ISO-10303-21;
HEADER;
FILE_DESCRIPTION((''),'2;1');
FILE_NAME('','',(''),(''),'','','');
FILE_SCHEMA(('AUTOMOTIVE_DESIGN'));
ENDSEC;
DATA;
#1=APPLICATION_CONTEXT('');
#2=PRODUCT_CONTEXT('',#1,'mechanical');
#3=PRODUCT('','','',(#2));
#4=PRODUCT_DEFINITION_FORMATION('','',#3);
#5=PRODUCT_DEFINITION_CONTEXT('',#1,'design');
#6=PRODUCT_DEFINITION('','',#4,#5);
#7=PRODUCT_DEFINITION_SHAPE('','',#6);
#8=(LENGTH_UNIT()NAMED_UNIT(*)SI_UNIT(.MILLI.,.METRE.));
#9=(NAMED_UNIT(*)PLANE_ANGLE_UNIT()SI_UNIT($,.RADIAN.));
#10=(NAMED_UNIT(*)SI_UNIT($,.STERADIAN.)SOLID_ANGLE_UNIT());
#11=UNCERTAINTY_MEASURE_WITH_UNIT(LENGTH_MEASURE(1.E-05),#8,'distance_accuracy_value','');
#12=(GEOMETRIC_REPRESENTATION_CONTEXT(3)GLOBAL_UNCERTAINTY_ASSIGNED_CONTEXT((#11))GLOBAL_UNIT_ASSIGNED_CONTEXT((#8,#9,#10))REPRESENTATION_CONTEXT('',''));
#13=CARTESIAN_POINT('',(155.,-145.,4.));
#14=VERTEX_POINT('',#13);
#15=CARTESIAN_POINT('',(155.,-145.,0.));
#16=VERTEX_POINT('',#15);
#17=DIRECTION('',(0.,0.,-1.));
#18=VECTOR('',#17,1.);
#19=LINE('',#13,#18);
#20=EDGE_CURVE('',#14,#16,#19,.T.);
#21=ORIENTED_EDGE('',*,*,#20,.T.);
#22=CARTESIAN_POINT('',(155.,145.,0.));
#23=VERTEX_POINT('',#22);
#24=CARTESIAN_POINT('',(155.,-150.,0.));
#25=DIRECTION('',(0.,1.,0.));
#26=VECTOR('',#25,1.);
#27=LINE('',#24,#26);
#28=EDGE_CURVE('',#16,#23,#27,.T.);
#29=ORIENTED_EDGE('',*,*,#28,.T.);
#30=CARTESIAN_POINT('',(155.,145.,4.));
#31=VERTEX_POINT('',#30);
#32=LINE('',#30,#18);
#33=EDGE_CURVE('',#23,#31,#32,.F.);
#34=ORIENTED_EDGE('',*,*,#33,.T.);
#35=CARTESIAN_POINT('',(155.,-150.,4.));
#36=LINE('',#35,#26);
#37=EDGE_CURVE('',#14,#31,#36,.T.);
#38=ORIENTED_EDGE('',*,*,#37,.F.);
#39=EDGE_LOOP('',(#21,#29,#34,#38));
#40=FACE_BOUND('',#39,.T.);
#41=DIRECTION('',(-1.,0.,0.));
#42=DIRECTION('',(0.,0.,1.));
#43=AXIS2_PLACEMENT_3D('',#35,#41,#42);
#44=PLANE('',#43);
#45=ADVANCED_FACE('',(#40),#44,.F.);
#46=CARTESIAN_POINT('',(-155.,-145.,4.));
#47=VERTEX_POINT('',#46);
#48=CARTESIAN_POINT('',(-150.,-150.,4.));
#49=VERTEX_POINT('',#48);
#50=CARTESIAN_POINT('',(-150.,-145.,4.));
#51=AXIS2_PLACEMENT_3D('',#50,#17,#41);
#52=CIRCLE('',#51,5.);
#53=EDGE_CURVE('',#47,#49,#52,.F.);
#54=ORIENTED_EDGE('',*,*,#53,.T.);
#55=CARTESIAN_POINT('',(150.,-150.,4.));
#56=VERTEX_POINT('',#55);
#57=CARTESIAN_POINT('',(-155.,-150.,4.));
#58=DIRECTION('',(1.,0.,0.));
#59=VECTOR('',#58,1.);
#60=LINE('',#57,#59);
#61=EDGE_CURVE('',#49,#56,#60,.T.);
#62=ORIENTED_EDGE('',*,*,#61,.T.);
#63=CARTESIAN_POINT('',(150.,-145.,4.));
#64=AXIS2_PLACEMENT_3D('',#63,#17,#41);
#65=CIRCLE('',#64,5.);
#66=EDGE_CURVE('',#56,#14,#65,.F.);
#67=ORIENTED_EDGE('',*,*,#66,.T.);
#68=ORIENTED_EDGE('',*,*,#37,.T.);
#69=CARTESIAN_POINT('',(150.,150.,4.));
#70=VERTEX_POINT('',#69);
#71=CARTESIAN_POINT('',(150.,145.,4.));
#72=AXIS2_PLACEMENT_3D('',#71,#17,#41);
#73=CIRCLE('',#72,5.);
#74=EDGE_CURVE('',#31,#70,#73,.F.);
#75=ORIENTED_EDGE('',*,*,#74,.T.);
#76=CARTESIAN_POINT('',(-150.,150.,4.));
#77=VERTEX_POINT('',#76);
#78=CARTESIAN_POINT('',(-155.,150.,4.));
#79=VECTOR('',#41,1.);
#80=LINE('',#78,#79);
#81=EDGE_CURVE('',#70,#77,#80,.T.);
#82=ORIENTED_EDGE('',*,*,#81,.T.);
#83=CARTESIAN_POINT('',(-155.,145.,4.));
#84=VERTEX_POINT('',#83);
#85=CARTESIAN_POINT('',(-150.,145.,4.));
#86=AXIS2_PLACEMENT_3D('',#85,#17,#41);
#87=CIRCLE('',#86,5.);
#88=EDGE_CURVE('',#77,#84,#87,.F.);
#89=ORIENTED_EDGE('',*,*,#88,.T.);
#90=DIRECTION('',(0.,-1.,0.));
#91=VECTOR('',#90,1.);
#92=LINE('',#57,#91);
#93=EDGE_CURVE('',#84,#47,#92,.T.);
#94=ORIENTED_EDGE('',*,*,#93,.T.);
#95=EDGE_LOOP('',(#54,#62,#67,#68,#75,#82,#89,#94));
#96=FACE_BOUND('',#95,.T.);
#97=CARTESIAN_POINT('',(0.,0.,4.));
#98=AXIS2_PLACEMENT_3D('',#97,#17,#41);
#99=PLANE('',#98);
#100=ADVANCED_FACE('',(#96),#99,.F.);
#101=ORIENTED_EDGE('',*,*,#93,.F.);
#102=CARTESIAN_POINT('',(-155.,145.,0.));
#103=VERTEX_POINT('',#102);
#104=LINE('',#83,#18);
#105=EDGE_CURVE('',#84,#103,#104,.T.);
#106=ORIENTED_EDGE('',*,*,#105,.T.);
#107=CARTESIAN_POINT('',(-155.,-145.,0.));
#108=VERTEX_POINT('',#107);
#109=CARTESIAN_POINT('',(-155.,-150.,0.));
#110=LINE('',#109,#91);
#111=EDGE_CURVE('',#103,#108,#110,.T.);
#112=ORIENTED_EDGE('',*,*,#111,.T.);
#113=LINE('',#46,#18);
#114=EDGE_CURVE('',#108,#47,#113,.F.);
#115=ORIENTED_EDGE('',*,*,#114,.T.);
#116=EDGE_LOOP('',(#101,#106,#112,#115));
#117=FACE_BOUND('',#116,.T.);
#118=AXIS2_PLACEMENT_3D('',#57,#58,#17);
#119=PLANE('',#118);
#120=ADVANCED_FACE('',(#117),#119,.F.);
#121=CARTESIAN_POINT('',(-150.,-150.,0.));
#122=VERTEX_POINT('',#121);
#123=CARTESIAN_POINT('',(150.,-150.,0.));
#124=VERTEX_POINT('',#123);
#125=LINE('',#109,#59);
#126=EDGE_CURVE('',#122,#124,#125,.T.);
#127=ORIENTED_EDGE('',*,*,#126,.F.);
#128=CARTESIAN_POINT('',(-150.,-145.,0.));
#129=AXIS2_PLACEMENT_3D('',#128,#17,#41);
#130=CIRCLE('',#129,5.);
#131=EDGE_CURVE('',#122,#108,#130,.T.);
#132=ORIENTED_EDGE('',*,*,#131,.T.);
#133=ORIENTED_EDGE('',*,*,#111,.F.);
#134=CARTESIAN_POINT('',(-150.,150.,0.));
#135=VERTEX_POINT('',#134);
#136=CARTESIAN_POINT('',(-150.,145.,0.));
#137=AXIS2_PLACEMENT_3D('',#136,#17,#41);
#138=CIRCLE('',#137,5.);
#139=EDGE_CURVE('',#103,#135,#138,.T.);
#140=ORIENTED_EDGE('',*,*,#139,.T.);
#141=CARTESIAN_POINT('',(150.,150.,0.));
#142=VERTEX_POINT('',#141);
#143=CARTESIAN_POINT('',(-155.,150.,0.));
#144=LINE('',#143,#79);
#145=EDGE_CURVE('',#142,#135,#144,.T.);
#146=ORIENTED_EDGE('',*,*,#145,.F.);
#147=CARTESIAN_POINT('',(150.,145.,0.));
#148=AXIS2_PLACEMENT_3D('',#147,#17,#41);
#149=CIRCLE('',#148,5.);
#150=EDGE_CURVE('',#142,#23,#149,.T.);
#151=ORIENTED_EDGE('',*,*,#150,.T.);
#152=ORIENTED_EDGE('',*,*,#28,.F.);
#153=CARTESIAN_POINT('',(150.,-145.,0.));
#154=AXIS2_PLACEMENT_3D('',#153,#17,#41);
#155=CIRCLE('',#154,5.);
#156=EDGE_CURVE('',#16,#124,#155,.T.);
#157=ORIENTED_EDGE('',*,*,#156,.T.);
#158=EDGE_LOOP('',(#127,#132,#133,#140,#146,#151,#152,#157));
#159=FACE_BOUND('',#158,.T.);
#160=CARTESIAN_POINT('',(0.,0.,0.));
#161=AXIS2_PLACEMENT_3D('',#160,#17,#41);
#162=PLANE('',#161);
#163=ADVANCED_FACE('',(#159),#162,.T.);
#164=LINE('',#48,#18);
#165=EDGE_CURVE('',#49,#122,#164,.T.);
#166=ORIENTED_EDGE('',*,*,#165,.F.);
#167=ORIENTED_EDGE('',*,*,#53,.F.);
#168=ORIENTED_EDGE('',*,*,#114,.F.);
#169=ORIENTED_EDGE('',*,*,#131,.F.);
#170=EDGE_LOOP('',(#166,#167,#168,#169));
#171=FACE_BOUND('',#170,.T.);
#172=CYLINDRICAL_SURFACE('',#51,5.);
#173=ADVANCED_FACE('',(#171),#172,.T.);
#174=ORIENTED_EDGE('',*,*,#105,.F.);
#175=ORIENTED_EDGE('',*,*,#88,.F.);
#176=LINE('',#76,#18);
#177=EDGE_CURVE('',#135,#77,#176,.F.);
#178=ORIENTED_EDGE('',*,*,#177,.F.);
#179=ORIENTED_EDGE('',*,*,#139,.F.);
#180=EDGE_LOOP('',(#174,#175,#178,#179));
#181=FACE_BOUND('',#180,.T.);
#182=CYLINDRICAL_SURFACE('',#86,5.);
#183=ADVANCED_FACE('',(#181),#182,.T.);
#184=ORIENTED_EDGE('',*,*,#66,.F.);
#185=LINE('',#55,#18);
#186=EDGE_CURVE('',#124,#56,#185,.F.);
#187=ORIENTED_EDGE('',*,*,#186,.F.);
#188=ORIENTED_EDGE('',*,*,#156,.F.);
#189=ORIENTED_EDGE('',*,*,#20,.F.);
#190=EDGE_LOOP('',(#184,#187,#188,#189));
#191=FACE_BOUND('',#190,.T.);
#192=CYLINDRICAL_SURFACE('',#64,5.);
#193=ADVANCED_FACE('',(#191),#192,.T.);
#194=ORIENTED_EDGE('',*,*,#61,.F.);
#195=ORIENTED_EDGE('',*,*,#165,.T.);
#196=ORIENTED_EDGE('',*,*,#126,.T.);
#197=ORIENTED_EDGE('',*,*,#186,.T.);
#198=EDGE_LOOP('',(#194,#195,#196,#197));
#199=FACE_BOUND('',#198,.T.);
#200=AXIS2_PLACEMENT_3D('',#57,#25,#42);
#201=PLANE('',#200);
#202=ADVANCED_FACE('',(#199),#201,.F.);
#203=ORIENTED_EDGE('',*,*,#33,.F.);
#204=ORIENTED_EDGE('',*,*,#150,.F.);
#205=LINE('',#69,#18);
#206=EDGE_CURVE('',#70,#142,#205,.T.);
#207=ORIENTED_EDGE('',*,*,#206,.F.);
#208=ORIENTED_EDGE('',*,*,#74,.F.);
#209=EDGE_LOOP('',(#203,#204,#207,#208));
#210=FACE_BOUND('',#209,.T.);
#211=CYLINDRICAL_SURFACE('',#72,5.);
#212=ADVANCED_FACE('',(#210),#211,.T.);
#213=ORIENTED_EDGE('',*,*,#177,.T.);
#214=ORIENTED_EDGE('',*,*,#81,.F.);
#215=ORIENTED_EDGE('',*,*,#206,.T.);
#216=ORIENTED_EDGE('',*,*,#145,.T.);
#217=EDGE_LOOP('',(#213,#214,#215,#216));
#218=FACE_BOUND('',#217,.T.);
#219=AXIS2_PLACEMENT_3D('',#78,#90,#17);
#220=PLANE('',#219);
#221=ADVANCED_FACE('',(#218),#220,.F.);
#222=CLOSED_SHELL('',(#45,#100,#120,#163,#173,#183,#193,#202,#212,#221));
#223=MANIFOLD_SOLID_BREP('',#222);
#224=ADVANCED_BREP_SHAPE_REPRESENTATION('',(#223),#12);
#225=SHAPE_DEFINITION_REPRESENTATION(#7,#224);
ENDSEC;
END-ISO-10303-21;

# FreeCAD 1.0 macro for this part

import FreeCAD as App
import Part
import Sketcher
from FreeCAD import Vector


def edges_at(feature, points):
    """Names of the edges that pass closest to the given points."""
    edges = feature.Shape.Edges
    near = lambda p: min(range(len(edges)), key=lambda i: edges[i].distToShape(Part.Vertex(*p))[0])
    return sorted({f"Edge{near(p) + 1}" for p in points})

doc = App.newDocument("Part")
body = doc.addObject("PartDesign::Body", "Body")

sketch1 = body.newObject("Sketcher::SketchObject", "Sketch")
sketch1.AttachmentSupport = (doc.getObject("XY_Plane"), [""])
sketch1.MapMode = "FlatFace"
sketch1.addGeometry([
    Part.LineSegment(Vector(-155, 150, 0), Vector(-155, -150, 0)),
    Part.LineSegment(Vector(-155, -150, 0), Vector(155, -150, 0)),
    Part.LineSegment(Vector(155, -150, 0), Vector(155, 150, 0)),
    Part.LineSegment(Vector(155, 150, 0), Vector(-155, 150, 0)),
], False)
sketch1.addConstraint([
    Sketcher.Constraint("Coincident", 0, 2, 1, 1),
    Sketcher.Constraint("Coincident", 1, 2, 2, 1),
    Sketcher.Constraint("Coincident", 2, 2, 3, 1),
    Sketcher.Constraint("Coincident", 3, 2, 0, 1),
    Sketcher.Constraint("Vertical", 0),
    Sketcher.Constraint("Horizontal", 1),
    Sketcher.Constraint("Vertical", 2),
    Sketcher.Constraint("Horizontal", 3),
    Sketcher.Constraint("Symmetric", 0, 2, 2, 2, -1, 1),
    Sketcher.Constraint("DistanceX", 1, 1, 1, 2, 310.0),
    Sketcher.Constraint("DistanceY", 0, 2, 0, 1, 300.0),
])
pad1 = body.newObject("PartDesign::Pad", "Pad")
pad1.Profile = sketch1
pad1.Length = 4
doc.recompute()

fillet = body.newObject("PartDesign::Fillet", "Fillet")
fillet.Base = (pad1, edges_at(pad1, [
    (155, -150, 2),
    (-155, -150, 2),
    (-155, 150, 2),
    (155, 150, 2),
]))
fillet.Radius = 5

doc.recompute()
